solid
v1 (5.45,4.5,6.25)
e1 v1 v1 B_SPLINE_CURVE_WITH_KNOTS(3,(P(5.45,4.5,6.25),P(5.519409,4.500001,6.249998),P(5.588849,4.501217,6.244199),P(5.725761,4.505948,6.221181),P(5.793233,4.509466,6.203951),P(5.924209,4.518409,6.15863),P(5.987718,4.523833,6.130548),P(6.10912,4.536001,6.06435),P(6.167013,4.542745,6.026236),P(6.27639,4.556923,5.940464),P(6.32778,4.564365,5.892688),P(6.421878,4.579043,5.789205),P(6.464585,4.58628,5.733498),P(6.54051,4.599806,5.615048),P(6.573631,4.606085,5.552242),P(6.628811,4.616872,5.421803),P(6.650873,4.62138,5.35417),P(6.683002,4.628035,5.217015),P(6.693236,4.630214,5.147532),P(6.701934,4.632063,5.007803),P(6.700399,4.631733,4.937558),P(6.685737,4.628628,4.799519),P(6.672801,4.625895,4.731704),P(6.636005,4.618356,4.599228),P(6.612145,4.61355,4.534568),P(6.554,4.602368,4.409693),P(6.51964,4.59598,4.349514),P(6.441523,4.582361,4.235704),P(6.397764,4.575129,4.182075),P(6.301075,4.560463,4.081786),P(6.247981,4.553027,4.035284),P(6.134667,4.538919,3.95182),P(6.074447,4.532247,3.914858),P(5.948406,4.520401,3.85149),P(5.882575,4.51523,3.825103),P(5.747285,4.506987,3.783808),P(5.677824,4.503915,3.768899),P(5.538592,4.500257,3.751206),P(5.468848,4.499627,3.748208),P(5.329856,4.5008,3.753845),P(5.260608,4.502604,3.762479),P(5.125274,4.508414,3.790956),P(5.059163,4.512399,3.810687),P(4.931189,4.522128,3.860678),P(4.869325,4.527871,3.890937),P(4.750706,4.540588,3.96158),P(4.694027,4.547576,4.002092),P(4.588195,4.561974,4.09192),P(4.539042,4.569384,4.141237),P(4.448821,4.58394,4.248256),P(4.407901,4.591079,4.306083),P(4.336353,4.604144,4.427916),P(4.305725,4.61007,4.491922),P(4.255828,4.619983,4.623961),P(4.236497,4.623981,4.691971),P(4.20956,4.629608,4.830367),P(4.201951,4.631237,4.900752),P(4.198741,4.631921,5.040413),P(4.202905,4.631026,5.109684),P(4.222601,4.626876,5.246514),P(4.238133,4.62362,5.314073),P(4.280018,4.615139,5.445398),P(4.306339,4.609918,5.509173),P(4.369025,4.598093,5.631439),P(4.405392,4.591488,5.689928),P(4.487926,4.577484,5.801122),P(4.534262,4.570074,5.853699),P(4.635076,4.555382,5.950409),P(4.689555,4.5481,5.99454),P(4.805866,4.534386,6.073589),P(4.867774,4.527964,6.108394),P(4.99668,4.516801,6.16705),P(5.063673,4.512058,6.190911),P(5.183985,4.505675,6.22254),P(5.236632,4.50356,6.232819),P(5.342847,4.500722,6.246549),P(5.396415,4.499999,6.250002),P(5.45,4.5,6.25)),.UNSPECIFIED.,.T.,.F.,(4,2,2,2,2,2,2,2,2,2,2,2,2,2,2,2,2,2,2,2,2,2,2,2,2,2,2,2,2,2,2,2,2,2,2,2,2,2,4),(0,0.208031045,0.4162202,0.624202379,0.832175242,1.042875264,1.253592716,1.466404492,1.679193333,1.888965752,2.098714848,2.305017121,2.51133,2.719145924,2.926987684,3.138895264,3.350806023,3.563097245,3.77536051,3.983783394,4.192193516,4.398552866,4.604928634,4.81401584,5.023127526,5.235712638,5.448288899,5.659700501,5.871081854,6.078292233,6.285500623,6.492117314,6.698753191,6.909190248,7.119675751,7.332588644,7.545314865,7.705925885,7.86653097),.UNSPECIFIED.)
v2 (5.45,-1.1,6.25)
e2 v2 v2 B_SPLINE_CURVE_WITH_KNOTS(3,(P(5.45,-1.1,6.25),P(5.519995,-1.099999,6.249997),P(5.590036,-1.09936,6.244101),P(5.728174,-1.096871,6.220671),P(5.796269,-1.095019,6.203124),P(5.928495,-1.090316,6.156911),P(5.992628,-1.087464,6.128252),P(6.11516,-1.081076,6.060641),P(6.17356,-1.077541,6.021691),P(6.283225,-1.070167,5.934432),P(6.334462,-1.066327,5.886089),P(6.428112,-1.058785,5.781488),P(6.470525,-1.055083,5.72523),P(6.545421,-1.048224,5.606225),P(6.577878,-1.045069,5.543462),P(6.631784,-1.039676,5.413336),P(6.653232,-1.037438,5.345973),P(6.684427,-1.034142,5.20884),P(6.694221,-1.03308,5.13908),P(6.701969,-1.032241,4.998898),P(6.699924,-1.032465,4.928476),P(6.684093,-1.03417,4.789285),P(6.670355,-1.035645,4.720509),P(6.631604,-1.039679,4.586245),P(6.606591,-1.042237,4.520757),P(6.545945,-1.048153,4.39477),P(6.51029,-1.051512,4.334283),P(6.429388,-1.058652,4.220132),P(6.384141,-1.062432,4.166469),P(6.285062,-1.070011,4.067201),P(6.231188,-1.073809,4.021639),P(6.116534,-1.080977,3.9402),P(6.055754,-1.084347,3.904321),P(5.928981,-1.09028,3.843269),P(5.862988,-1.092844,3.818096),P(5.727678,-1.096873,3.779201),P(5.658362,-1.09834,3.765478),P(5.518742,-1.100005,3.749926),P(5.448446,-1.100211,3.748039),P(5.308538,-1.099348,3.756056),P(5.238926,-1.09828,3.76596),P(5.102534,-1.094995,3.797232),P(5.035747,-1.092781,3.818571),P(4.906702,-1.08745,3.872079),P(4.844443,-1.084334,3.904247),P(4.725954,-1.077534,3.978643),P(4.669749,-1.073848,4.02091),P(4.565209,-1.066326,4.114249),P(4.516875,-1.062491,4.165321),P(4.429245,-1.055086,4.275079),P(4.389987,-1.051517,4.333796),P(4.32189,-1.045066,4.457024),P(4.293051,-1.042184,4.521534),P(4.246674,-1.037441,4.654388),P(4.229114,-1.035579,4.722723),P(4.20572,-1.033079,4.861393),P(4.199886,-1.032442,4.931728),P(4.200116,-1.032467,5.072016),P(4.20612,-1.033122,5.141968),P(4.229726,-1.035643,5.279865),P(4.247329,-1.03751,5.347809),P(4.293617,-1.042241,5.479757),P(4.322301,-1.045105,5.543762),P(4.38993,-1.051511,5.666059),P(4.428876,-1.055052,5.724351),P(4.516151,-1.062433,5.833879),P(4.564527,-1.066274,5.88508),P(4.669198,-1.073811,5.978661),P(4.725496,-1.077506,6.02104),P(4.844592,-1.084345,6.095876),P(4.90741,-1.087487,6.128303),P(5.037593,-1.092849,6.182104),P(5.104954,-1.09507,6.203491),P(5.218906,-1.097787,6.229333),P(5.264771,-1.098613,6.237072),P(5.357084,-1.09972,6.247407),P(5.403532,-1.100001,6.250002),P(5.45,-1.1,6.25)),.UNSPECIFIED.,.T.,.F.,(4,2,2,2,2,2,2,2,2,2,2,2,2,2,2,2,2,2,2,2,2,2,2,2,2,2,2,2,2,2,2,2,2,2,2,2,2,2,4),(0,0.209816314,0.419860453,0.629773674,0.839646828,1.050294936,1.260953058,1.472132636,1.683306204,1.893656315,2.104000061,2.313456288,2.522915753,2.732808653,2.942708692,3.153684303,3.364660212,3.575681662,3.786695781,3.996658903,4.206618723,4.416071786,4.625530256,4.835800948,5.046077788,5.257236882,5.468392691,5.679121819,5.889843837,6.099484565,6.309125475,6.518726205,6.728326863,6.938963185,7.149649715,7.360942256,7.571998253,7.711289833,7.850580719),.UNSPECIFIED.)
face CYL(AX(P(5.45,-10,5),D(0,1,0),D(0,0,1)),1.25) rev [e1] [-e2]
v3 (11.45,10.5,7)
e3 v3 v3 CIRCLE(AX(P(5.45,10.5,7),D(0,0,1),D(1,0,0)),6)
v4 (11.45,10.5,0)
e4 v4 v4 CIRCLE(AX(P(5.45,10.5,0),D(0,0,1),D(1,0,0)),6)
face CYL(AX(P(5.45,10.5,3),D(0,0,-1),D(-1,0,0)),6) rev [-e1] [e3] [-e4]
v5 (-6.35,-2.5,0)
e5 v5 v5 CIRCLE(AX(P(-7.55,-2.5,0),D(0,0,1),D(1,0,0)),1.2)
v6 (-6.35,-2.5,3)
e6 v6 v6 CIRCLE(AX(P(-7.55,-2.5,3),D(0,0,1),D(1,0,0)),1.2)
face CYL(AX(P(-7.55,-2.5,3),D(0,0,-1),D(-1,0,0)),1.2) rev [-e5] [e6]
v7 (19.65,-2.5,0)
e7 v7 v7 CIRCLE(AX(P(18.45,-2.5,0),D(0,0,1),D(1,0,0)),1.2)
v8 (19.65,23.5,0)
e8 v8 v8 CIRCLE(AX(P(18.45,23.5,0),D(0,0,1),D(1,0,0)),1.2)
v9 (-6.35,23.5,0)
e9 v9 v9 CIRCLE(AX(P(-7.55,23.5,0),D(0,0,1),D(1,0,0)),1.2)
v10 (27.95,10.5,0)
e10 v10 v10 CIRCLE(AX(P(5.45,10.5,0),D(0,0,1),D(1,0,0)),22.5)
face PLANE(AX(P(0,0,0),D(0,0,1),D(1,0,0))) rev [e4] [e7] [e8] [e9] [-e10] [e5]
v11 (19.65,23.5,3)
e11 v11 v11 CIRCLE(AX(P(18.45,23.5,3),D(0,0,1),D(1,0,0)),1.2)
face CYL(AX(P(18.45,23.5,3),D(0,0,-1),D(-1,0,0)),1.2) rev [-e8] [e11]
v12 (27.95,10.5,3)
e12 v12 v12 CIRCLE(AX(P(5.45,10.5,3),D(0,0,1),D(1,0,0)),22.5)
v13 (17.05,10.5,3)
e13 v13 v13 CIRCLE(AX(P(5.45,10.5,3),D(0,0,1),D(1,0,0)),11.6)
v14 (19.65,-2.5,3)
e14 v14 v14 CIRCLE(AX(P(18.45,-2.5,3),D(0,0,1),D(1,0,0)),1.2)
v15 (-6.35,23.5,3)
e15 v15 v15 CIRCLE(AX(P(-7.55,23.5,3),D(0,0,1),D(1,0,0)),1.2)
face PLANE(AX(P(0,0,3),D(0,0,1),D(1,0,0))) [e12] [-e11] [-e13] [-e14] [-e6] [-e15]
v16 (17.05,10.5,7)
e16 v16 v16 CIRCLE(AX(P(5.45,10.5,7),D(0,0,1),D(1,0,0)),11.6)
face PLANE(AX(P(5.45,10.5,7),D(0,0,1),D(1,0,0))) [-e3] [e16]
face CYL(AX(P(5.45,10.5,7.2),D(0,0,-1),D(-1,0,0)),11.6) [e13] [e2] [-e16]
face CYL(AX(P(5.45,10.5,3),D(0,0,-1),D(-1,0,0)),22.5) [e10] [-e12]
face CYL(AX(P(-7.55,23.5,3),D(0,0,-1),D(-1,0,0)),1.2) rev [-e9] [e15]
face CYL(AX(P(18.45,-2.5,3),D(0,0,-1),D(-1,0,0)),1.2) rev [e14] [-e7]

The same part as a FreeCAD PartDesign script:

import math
import FreeCAD as App
import Part
import Sketcher
from FreeCAD import Vector
Q = App.Units.Quantity

doc = App.newDocument("Part")
params = doc.addObject("Spreadsheet::Sheet", "Params")
for row, (alias, value) in enumerate([
    ("sketch1_diameter", "45 mm"),
    ("sketch1_diameter2", "12 mm"),
    ("sketch1_diameter3", "2.4 mm"),
    ("pad1_length", "3 mm"),
    ("sketch2_diameter", "23.2 mm"),
    ("sketch2_diameter2", "15.2 mm"),
    ("pad2_length", "4.2 mm"),
    ("sketch3_diameter", "23.2 mm"),
    ("pocket1_length", "0.2 mm"),
    ("sketch4_diameter", "12 mm"),
    ("sketch4_diameter2", "15.2 mm"),
    ("pad3_length", "4 mm"),
    ("sketch5_radius", "1.25 mm"),
    ("pocket2_length", "10 mm"),
    ("pocket2_length2", "10 mm"),
], start=1):
    params.set(f"A{row}", alias)
    params.set(f"B{row}", "=" + value)
    params.setAlias(f"B{row}", alias)

body = doc.addObject("PartDesign::Body", "Body")

# Sketch on XY plane
sketch1 = body.newObject("Sketcher::SketchObject", "Sketch")
sketch1.AttachmentSupport = (doc.getObject("XY_Plane"), [""])
sketch1.MapMode = "FlatFace"
sketch1.addGeometry([
    Part.Circle(Vector(5.45, 10.5, 0), Vector(0, 0, 1), 22.5),  # 0
    Part.Circle(Vector(-7.55, -2.5, 0), Vector(0, 0, 1), 1.2),  # 1
    Part.Circle(Vector(18.45, -2.5, 0), Vector(0, 0, 1), 1.2),  # 2
    Part.Circle(Vector(-7.55, 23.5, 0), Vector(0, 0, 1), 1.2),  # 3
    Part.Circle(Vector(5.45, 10.5, 0), Vector(0, 0, 1), 6),  # 4
    Part.Circle(Vector(18.45, 23.5, 0), Vector(0, 0, 1), 1.2),  # 5
], False)
sketch1.addConstraint([
    Sketcher.Constraint("Coincident", 4, 3, 0, 3),
    Sketcher.Constraint("Equal", 1, 2),
    Sketcher.Constraint("Equal", 2, 3),
    Sketcher.Constraint("Equal", 3, 5),
    Sketcher.Constraint("Horizontal", 1, 3, 2, 3),
    Sketcher.Constraint("Horizontal", 3, 3, 5, 3),
    Sketcher.Constraint("Vertical", 1, 3, 3, 3),
    Sketcher.Constraint("Vertical", 2, 3, 5, 3),
    Sketcher.Constraint("Diameter", 0, Q("45 mm")),
    Sketcher.Constraint("Diameter", 4, Q("12 mm")),
    Sketcher.Constraint("Diameter", 1, Q("2.4 mm")),
    Sketcher.Constraint("DistanceX", 1, 3, 0, 3, Q("13 mm")),
    Sketcher.Constraint("DistanceY", 1, 3, 0, 3, Q("13 mm")),
    Sketcher.Constraint("DistanceX", 0, 3, 2, 3, Q("13 mm")),
    Sketcher.Constraint("DistanceY", 0, 3, 3, 3, Q("13 mm")),
    Sketcher.Constraint("DistanceY", -1, 1, 0, 3, Q("10.5 mm")),
    Sketcher.Constraint("DistanceX", -1, 1, 0, 3, Q("5.45 mm")),
])
sketch1.setExpression("Constraints[8]", "Params.sketch1_diameter")
sketch1.setExpression("Constraints[9]", "Params.sketch1_diameter2")
sketch1.setExpression("Constraints[10]", "Params.sketch1_diameter3")
pad1 = body.newObject("PartDesign::Pad", "Pad")
pad1.Profile = sketch1
pad1.setExpression("Length", "Params.pad1_length")

# Sketch on XY plane
sketch2 = body.newObject("Sketcher::SketchObject", "Sketch001")
sketch2.AttachmentSupport = (doc.getObject("XY_Plane"), [""])
sketch2.MapMode = "FlatFace"
sketch2.AttachmentOffset = App.Placement(Vector(0, 0, 3), App.Rotation())
sketch2.addGeometry([
    Part.Circle(Vector(5.45, 10.5, 0), Vector(0, 0, 1), 11.6),
    Part.Circle(Vector(5.45, 10.5, 0), Vector(0, 0, 1), 7.6),
], False)
sketch2.addConstraint([
    Sketcher.Constraint("Coincident", 1, 3, 0, 3),
    Sketcher.Constraint("Diameter", 0, Q("23.2 mm")),
    Sketcher.Constraint("Diameter", 1, Q("15.2 mm")),
    Sketcher.Constraint("DistanceY", -1, 1, 0, 3, Q("10.5 mm")),
    Sketcher.Constraint("DistanceX", -1, 1, 0, 3, Q("5.45 mm")),
])
sketch2.setExpression("Constraints[1]", "Params.sketch2_diameter")
sketch2.setExpression("Constraints[2]", "Params.sketch2_diameter2")
pad2 = body.newObject("PartDesign::Pad", "Pad001")
pad2.Profile = sketch2
pad2.setExpression("Length", "Params.pad2_length")

# Sketch on XY plane
sketch3 = body.newObject("Sketcher::SketchObject", "Sketch002")
sketch3.AttachmentSupport = (doc.getObject("XY_Plane"), [""])
sketch3.MapMode = "FlatFace"
sketch3.AttachmentOffset = App.Placement(Vector(0, 0, 7), App.Rotation())
sketch3.addGeometry(Part.Circle(Vector(5.45, 10.5, 0), Vector(0, 0, 1), 11.6), False)
sketch3.addConstraint([
    Sketcher.Constraint("Diameter", 0, Q("23.2 mm")),
    Sketcher.Constraint("DistanceY", -1, 1, 0, 3, Q("10.5 mm")),
    Sketcher.Constraint("DistanceX", -1, 1, 0, 3, Q("5.45 mm")),
])
sketch3.setExpression("Constraints[0]", "Params.sketch3_diameter")
pocket1 = body.newObject("PartDesign::Pocket", "Pocket")
pocket1.Profile = sketch3
pocket1.setExpression("Length", "Params.pocket1_length")
pocket1.Reversed = True

# Sketch on XY plane
sketch4 = body.newObject("Sketcher::SketchObject", "Sketch003")
sketch4.AttachmentSupport = (doc.getObject("XY_Plane"), [""])
sketch4.MapMode = "FlatFace"
sketch4.AttachmentOffset = App.Placement(Vector(0, 0, 3), App.Rotation())
sketch4.addGeometry([
    Part.Circle(Vector(5.45, 10.5, 0), Vector(0, 0, 1), 7.6),
    Part.Circle(Vector(5.45, 10.5, 0), Vector(0, 0, 1), 6),
], False)
sketch4.addConstraint([
    Sketcher.Constraint("Coincident", 1, 3, 0, 3),
    Sketcher.Constraint("Diameter", 1, Q("12 mm")),
    Sketcher.Constraint("Diameter", 0, Q("15.2 mm")),
    Sketcher.Constraint("DistanceY", -1, 1, 0, 3, Q("10.5 mm")),
    Sketcher.Constraint("DistanceX", -1, 1, 0, 3, Q("5.45 mm")),
])
sketch4.setExpression("Constraints[1]", "Params.sketch4_diameter")
sketch4.setExpression("Constraints[2]", "Params.sketch4_diameter2")
pad3 = body.newObject("PartDesign::Pad", "Pad002")
pad3.Profile = sketch4
pad3.setExpression("Length", "Params.pad3_length")

# Sketch on XZ plane
sketch5 = body.newObject("Sketcher::SketchObject", "Sketch004")
sketch5.AttachmentSupport = (doc.getObject("XZ_Plane"), [""])
sketch5.MapMode = "FlatFace"
sketch5.addGeometry([
    Part.ArcOfCircle(Part.Circle(Vector(5.45, 5, 0), Vector(0, 0, 1), 1.25), math.radians(-170.217593), math.radians(0)),
    Part.ArcOfCircle(Part.Circle(Vector(5.45, 5, 0), Vector(0, 0, 1), 1.25), math.radians(9.782407), math.radians(189.782407)),
    Part.ArcOfCircle(Part.Circle(Vector(5.45, 5, 0), Vector(0, 0, 1), 1.25), math.radians(0), math.radians(9.782407)),
], False)
sketch5.addConstraint([
    Sketcher.Constraint("Tangent", 0, 1, 1, 2),
    Sketcher.Constraint("Tangent", 1, 1, 2, 2),
    Sketcher.Constraint("Tangent", 2, 1, 0, 2),
    Sketcher.Constraint("Horizontal", 1, 3, 2, 1),
    Sketcher.Constraint("Radius", 0, Q("1.25 mm")),
    Sketcher.Constraint("DistanceY", -1, 1, 0, 3, Q("5 mm")),
    Sketcher.Constraint("DistanceX", -1, 1, 2, 1, Q("6.7 mm")),
    Sketcher.Constraint("DistanceX", 0, 1, 1, 1, Q("2.46365 mm")),
    Sketcher.Constraint("DistanceX", -1, 1, 0, 1, Q("4.218175 mm")),
])
sketch5.setExpression("Constraints[4]", "Params.sketch5_radius")
pocket2 = body.newObject("PartDesign::Pocket", "Pocket001")
pocket2.Profile = sketch5
pocket2.Type = "TwoLengths"
pocket2.setExpression("Length", "Params.pocket2_length")
pocket2.setExpression("Length2", "Params.pocket2_length2")

doc.recompute()
